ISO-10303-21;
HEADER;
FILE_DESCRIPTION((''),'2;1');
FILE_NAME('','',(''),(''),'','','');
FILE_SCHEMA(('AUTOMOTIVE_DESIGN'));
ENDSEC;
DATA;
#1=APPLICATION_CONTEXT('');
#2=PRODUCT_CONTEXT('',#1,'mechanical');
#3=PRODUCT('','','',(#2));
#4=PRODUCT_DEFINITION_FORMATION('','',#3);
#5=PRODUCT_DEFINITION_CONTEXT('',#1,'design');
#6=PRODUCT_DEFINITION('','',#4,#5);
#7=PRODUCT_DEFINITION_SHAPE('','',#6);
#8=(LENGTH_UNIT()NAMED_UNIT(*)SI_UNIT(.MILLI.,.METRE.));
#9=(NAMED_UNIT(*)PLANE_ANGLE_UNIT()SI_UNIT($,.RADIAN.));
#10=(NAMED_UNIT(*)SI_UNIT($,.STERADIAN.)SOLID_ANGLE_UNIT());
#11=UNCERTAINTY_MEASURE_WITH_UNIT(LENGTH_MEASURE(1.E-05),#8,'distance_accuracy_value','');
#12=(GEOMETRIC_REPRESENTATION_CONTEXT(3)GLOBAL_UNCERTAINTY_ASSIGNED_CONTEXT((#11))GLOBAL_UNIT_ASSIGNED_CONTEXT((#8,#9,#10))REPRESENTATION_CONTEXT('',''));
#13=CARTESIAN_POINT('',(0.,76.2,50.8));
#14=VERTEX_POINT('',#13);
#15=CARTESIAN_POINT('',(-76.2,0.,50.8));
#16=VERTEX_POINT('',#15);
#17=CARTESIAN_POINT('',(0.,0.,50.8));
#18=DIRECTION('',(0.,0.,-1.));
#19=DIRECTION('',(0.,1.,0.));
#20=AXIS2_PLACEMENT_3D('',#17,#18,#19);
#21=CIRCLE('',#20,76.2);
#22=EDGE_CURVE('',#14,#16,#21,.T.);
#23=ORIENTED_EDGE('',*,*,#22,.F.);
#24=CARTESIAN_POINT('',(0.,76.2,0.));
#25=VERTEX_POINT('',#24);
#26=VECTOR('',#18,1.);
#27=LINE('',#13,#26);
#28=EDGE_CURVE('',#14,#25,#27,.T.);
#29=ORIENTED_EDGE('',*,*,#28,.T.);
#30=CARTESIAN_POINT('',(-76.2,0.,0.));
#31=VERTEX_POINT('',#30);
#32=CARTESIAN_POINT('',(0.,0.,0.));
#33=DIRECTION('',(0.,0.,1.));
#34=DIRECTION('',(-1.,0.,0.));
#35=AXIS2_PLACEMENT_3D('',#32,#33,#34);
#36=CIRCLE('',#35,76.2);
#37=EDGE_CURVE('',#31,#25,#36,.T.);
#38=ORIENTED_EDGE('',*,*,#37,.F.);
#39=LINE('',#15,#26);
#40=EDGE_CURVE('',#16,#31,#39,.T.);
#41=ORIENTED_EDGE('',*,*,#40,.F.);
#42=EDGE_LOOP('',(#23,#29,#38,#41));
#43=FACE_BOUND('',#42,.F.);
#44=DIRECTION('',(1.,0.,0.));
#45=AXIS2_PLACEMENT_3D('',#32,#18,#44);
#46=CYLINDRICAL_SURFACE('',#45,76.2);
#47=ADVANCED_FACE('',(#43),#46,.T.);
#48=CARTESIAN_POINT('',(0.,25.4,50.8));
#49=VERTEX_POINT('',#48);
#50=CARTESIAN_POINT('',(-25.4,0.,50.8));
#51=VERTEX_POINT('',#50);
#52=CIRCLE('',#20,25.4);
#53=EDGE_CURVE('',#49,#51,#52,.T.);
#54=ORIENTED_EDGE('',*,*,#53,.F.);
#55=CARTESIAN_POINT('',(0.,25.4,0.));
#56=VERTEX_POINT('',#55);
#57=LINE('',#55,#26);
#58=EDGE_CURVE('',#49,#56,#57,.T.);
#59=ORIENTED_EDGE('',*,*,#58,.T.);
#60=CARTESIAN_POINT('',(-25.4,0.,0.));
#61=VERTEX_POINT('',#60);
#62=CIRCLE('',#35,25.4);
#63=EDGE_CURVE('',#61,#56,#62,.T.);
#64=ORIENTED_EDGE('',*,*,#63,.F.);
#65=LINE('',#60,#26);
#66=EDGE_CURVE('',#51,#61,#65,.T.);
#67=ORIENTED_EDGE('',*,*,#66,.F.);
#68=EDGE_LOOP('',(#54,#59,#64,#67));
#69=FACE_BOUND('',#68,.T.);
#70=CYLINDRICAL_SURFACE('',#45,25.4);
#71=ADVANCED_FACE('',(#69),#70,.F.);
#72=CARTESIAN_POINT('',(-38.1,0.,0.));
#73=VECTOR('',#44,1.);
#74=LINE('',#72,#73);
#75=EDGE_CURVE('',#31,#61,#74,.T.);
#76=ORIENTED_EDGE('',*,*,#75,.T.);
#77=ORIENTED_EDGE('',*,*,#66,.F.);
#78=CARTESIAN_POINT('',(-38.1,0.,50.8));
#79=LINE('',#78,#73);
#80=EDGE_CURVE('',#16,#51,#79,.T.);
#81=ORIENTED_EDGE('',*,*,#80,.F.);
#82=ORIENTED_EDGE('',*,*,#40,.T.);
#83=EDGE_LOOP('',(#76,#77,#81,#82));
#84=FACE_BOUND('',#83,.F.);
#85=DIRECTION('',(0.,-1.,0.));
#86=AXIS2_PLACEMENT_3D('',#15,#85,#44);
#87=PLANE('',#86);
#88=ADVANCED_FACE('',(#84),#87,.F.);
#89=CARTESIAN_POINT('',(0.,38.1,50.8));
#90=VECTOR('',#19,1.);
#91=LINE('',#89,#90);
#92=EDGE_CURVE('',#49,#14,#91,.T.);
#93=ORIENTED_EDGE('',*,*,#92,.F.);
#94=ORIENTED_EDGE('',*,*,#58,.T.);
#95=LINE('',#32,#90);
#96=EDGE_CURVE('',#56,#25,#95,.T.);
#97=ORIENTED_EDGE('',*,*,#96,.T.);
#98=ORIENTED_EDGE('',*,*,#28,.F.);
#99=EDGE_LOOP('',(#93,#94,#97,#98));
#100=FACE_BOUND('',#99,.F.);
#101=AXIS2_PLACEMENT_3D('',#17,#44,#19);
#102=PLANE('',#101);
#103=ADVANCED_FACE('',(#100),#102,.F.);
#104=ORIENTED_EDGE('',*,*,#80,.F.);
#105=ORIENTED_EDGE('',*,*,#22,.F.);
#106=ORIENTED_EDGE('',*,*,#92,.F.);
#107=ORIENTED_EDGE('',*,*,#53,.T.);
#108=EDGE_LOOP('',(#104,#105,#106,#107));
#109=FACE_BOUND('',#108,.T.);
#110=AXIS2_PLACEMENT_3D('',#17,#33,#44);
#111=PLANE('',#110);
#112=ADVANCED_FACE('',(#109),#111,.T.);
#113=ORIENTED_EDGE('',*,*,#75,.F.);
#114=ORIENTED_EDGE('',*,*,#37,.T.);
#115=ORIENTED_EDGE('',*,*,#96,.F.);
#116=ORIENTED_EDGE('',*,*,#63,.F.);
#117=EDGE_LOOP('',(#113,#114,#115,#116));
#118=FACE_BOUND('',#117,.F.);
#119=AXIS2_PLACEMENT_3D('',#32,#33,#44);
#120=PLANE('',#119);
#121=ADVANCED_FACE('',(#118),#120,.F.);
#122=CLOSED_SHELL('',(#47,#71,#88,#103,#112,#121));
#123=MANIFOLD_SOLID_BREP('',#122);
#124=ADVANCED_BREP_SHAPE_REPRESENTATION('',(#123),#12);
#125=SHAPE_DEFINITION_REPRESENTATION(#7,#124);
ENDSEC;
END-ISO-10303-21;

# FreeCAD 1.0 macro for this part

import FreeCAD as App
import Part
import Sketcher
Q = App.Units.Quantity

doc = App.newDocument("Part")
params = doc.addObject("Spreadsheet::Sheet", "Params")
for row, (alias, value) in enumerate([
    ("sketch1_diameter", "6 in"),
    ("sketch1_diameter2", "2 in"),
    ("pad1_length", "2 in"),
    ("sketch2_width", "3 in"),
], start=1):
    params.set(f"A{row}", alias)
    params.set(f"B{row}", "=" + value)
    params.setAlias(f"B{row}", alias)

body = doc.addObject("PartDesign::Body", "Body")

sketch1 = body.newObject("Sketcher::SketchObject", "Sketch")
sketch1.AttachmentSupport = (doc.getObject("XY_Plane"), [""])
sketch1.MapMode = "FlatFace"
sketch1.addGeometry([
    Part.Circle(App.Vector(0, 0, 0), App.Vector(0, 0, 1), 76),
    Part.Circle(App.Vector(0, 0, 0), App.Vector(0, 0, 1), 25),
], False)
sketch1.addConstraint([
    Sketcher.Constraint("Coincident", 0, 3, -1, 1),
    Sketcher.Constraint("Coincident", 1, 3, -1, 1),
    Sketcher.Constraint("Diameter", 0, Q("6 in")),
    Sketcher.Constraint("Diameter", 1, Q("2 in")),
])
sketch1.setExpression("Constraints[2]", "Params.sketch1_diameter")
sketch1.setExpression("Constraints[3]", "Params.sketch1_diameter2")
pad1 = body.newObject("PartDesign::Pad", "Pad")
pad1.Profile = sketch1
pad1.setExpression("Length", "Params.pad1_length")

sketch2 = body.newObject("Sketcher::SketchObject", "Sketch001")
sketch2.AttachmentSupport = (doc.getObject("XY_Plane"), [""])
sketch2.MapMode = "FlatFace"
sketch2.AttachmentOffset = App.Placement(App.Vector(0, 0, 2 * 25.4), App.Rotation())
sketch2.addGeometry([
    Part.LineSegment(App.Vector(-76, 76, 0), App.Vector(-76, 0, 0)),
    Part.LineSegment(App.Vector(-76, 0, 0), App.Vector(0, 0, 0)),
    Part.LineSegment(App.Vector(0, 0, 0), App.Vector(0, 76, 0)),
    Part.LineSegment(App.Vector(0, 76, 0), App.Vector(-76, 76, 0)),
], False)
sketch2.addConstraint([
    Sketcher.Constraint("Coincident", 0, 2, 1, 1),
    Sketcher.Constraint("Coincident", 1, 2, 2, 1),
    Sketcher.Constraint("Coincident", 2, 2, 3, 1),
    Sketcher.Constraint("Coincident", 3, 2, 0, 1),
    Sketcher.Constraint("Vertical", 0),
    Sketcher.Constraint("Horizontal", 1),
    Sketcher.Constraint("Vertical", 2),
    Sketcher.Constraint("Horizontal", 3),
    Sketcher.Constraint("Coincident", 1, 2, -1, 1),
    Sketcher.Constraint("Equal", 3, 0),
    Sketcher.Constraint("DistanceX", 1, 1, 1, 2, Q("3 in")),
])
sketch2.setExpression("Constraints[10]", "Params.sketch2_width")
pocket1 = body.newObject("PartDesign::Pocket", "Pocket")
pocket1.Profile = sketch2
pocket1.Type = "ThroughAll"

doc.recompute()
